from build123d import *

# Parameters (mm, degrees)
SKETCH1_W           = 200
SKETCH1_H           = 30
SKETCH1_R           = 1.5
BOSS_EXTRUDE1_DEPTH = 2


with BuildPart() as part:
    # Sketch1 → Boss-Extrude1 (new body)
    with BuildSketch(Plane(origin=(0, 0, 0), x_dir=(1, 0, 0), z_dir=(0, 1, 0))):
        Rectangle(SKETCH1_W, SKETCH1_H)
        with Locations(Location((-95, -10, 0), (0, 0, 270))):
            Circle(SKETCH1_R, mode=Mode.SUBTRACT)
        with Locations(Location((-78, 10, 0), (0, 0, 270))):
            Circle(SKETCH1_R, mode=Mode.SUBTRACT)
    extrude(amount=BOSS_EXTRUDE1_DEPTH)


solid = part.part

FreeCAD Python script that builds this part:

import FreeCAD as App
import Part
import Sketcher
from FreeCAD import Vector


def add_polygon(sketch, points):
    """Adds a closed chain of lines whose ends are joined by coincident constraints."""
    first, n = sketch.GeometryCount, len(points)
    for a, b in zip(points, points[1:] + points[:1]):
        sketch.addGeometry(Part.LineSegment(App.Vector(*a, 0), App.Vector(*b, 0)), False)
    for i in range(n):
        sketch.addConstraint(Sketcher.Constraint("Coincident", first + i, 2, first + (i + 1) % n, 1))

doc = App.newDocument("Part")
body = doc.addObject("PartDesign::Body", "Body")

# Sketch on XZ plane
sketch1 = body.newObject("Sketcher::SketchObject", "Sketch")
sketch1.AttachmentSupport = (doc.getObject("XZ_Plane"), [""])
sketch1.MapMode = "FlatFace"
add_polygon(sketch1, [(-100, -15), (-100, 15), (100, 15), (100, -15)])  # lines 0-3
sketch1.addGeometry(Part.Circle(Vector(-95, 10, 0), Vector(0, 0, 1), 1.5), False)  # 4
sketch1.addGeometry(Part.Circle(Vector(-78, -10, 0), Vector(0, 0, 1), 1.5), False)  # 5
sketch1.addConstraint(Sketcher.Constraint("Vertical", 0))
sketch1.addConstraint(Sketcher.Constraint("Horizontal", 1))
sketch1.addConstraint(Sketcher.Constraint("Vertical", 2))
sketch1.addConstraint(Sketcher.Constraint("Horizontal", 3))
sketch1.addConstraint(Sketcher.Constraint("Equal", 4, 5))
sketch1.addConstraint(Sketcher.Constraint("Symmetric", 0, 2, 2, 2, -1, 1))
sketch1.addConstraint(Sketcher.Constraint("Diameter", 4, 3.0))
sketch1.addConstraint(Sketcher.Constraint("DistanceX", 1, 1, 1, 2, 200.0))
sketch1.addConstraint(Sketcher.Constraint("DistanceY", 0, 1, 0, 2, 30.0))
sketch1.addConstraint(Sketcher.Constraint("DistanceX", 4, 3, -1, 1, 95.0))
sketch1.addConstraint(Sketcher.Constraint("DistanceY", -1, 1, 4, 3, 10.0))
sketch1.addConstraint(Sketcher.Constraint("DistanceX", 5, 3, -1, 1, 78.0))
sketch1.addConstraint(Sketcher.Constraint("DistanceY", 5, 3, -1, 1, 10.0))
pad1 = body.newObject("PartDesign::Pad", "Pad")
pad1.Profile = sketch1
pad1.Length = 2
pad1.Reversed = True

doc.recompute()
